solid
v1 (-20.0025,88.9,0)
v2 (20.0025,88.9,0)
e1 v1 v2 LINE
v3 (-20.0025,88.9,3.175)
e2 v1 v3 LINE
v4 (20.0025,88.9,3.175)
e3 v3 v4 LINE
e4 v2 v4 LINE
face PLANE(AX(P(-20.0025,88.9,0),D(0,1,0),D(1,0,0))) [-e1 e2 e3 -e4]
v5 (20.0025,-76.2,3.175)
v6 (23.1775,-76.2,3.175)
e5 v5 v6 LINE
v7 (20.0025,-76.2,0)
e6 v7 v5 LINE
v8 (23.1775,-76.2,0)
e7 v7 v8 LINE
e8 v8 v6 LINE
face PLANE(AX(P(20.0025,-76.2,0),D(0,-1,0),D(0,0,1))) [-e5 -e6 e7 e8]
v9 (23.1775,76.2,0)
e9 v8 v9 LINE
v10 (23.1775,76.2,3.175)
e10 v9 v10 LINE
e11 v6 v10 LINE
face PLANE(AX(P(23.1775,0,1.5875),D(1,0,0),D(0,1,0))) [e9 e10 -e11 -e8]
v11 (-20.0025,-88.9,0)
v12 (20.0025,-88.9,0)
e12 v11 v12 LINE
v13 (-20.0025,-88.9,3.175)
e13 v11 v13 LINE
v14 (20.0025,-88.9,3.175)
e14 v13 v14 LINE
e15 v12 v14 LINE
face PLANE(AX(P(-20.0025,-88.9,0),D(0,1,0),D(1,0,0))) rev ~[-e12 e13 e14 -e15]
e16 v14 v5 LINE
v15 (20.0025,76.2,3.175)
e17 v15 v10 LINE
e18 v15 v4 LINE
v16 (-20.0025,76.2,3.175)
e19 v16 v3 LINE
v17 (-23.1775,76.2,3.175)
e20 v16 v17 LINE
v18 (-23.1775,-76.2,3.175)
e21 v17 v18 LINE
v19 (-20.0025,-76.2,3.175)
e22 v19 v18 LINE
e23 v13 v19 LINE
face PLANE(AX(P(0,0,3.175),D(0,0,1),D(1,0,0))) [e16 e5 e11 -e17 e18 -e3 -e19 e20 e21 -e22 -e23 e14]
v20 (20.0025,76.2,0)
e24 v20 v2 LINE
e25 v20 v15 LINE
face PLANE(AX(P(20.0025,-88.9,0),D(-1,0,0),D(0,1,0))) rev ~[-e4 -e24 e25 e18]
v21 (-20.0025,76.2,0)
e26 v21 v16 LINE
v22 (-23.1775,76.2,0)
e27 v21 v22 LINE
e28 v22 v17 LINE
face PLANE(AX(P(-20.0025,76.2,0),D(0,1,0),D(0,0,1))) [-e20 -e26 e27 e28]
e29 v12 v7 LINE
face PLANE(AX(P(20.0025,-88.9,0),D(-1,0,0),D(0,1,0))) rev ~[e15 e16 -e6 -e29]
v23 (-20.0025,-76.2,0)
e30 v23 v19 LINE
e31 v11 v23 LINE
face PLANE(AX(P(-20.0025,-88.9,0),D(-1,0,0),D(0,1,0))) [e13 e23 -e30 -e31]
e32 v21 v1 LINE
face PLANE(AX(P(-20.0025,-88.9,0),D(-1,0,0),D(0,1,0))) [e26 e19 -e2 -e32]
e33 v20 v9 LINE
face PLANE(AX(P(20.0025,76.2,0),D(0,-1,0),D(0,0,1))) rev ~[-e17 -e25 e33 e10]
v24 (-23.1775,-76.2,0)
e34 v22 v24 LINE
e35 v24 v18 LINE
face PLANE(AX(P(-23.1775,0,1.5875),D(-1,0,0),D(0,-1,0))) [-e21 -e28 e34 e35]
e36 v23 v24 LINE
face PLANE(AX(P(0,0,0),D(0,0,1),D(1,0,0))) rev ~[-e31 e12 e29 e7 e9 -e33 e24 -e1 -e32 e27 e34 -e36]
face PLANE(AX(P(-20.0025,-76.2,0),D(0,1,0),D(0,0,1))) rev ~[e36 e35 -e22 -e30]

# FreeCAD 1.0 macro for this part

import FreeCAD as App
import Part
import Sketcher

V = App.Vector
Q = App.Units.Quantity


def add_polygon(sketch, points):
    """Adds a closed chain of lines whose ends are joined by coincident constraints."""
    first, n = sketch.GeometryCount, len(points)
    for a, b in zip(points, points[1:] + points[:1]):
        sketch.addGeometry(Part.LineSegment(App.Vector(*a, 0), App.Vector(*b, 0)), False)
    for i in range(n):
        sketch.addConstraint(Sketcher.Constraint("Coincident", first + i, 2, first + (i + 1) % n, 1))

doc = App.newDocument("Part")
body = doc.addObject("PartDesign::Body", "Body")

sketch1 = doc.addObject("Sketcher::SketchObject", "Sketch")
body.addObject(sketch1)
sketch1.AttachmentSupport = (doc.XY_Plane, [""])
sketch1.MapMode = "FlatFace"
add_polygon(sketch1, [(-20, 89), (-20, -89), (20, -89), (20, 89)])
sketch1.addConstraint(Sketcher.Constraint("Vertical", 0))
sketch1.addConstraint(Sketcher.Constraint("Horizontal", 1))
sketch1.addConstraint(Sketcher.Constraint("Vertical", 2))
sketch1.addConstraint(Sketcher.Constraint("Horizontal", 3))
sketch1.addConstraint(Sketcher.Constraint("Symmetric", 0, 2, 2, 2, -1, 1))
sketch1.addConstraint(Sketcher.Constraint("DistanceY", 0, 2, 0, 1, Q("7 in")))
sketch1.addConstraint(Sketcher.Constraint("DistanceX", 1, 1, 1, 2, Q("1.575 in")))
pad1 = doc.addObject("PartDesign::Pad", "Pad")
body.addObject(pad1)
pad1.Profile = sketch1
pad1.Length = Q("0.125 in")

sketch2 = doc.addObject("Sketcher::SketchObject", "Sketch001")
body.addObject(sketch2)
sketch2.AttachmentSupport = (doc.YZ_Plane, [""])
sketch2.MapMode = "FlatFace"
sketch2.AttachmentOffset = App.Placement(V(0, 0, -0.7875 * 25.4), App.Rotation())
add_polygon(sketch2, [(76.2, 3.2), (76.2, 0), (-76.2, 0), (-76.2, 3.2)])
sketch2.addConstraint(Sketcher.Constraint("Vertical", 0))
sketch2.addConstraint(Sketcher.Constraint("Horizontal", 1))
sketch2.addConstraint(Sketcher.Constraint("Vertical", 2))
sketch2.addConstraint(Sketcher.Constraint("Horizontal", 3))
sketch2.addConstraint(Sketcher.Constraint("Symmetric", 0, 2, 1, 2, -1, 1))
sketch2.addConstraint(Sketcher.Constraint("DistanceX", 1, 2, 1, 1, Q("6 in")))
sketch2.addConstraint(Sketcher.Constraint("DistanceY", 0, 2, 0, 1, Q("0.125 in")))
pad2 = doc.addObject("PartDesign::Pad", "Pad001")
body.addObject(pad2)
pad2.Profile = sketch2
pad2.Length = Q("0.125 in")
pad2.Reversed = True

sketch3 = doc.addObject("Sketcher::SketchObject", "Sketch002")
body.addObject(sketch3)
sketch3.AttachmentSupport = (doc.YZ_Plane, [""])
sketch3.MapMode = "FlatFace"
sketch3.AttachmentOffset = App.Placement(V(0, 0, 0.7875 * 25.4), App.Rotation())
add_polygon(sketch3, [(-76.2, 3.2), (-76.2, 0), (76.2, 0), (76.2, 3.2)])
sketch3.addConstraint(Sketcher.Constraint("Vertical", 0))
sketch3.addConstraint(Sketcher.Constraint("Horizontal", 1))
sketch3.addConstraint(Sketcher.Constraint("Vertical", 2))
sketch3.addConstraint(Sketcher.Constraint("Horizontal", 3))
sketch3.addConstraint(Sketcher.Constraint("Symmetric", 0, 2, 1, 2, -1, 1))
sketch3.addConstraint(Sketcher.Constraint("DistanceX", 1, 1, 1, 2, Q("6 in")))
sketch3.addConstraint(Sketcher.Constraint("DistanceY", 0, 2, 0, 1, Q("0.125 in")))
pad3 = doc.addObject("PartDesign::Pad", "Pad002")
body.addObject(pad3)
pad3.Profile = sketch3
pad3.Length = Q("0.125 in")

doc.recompute()
